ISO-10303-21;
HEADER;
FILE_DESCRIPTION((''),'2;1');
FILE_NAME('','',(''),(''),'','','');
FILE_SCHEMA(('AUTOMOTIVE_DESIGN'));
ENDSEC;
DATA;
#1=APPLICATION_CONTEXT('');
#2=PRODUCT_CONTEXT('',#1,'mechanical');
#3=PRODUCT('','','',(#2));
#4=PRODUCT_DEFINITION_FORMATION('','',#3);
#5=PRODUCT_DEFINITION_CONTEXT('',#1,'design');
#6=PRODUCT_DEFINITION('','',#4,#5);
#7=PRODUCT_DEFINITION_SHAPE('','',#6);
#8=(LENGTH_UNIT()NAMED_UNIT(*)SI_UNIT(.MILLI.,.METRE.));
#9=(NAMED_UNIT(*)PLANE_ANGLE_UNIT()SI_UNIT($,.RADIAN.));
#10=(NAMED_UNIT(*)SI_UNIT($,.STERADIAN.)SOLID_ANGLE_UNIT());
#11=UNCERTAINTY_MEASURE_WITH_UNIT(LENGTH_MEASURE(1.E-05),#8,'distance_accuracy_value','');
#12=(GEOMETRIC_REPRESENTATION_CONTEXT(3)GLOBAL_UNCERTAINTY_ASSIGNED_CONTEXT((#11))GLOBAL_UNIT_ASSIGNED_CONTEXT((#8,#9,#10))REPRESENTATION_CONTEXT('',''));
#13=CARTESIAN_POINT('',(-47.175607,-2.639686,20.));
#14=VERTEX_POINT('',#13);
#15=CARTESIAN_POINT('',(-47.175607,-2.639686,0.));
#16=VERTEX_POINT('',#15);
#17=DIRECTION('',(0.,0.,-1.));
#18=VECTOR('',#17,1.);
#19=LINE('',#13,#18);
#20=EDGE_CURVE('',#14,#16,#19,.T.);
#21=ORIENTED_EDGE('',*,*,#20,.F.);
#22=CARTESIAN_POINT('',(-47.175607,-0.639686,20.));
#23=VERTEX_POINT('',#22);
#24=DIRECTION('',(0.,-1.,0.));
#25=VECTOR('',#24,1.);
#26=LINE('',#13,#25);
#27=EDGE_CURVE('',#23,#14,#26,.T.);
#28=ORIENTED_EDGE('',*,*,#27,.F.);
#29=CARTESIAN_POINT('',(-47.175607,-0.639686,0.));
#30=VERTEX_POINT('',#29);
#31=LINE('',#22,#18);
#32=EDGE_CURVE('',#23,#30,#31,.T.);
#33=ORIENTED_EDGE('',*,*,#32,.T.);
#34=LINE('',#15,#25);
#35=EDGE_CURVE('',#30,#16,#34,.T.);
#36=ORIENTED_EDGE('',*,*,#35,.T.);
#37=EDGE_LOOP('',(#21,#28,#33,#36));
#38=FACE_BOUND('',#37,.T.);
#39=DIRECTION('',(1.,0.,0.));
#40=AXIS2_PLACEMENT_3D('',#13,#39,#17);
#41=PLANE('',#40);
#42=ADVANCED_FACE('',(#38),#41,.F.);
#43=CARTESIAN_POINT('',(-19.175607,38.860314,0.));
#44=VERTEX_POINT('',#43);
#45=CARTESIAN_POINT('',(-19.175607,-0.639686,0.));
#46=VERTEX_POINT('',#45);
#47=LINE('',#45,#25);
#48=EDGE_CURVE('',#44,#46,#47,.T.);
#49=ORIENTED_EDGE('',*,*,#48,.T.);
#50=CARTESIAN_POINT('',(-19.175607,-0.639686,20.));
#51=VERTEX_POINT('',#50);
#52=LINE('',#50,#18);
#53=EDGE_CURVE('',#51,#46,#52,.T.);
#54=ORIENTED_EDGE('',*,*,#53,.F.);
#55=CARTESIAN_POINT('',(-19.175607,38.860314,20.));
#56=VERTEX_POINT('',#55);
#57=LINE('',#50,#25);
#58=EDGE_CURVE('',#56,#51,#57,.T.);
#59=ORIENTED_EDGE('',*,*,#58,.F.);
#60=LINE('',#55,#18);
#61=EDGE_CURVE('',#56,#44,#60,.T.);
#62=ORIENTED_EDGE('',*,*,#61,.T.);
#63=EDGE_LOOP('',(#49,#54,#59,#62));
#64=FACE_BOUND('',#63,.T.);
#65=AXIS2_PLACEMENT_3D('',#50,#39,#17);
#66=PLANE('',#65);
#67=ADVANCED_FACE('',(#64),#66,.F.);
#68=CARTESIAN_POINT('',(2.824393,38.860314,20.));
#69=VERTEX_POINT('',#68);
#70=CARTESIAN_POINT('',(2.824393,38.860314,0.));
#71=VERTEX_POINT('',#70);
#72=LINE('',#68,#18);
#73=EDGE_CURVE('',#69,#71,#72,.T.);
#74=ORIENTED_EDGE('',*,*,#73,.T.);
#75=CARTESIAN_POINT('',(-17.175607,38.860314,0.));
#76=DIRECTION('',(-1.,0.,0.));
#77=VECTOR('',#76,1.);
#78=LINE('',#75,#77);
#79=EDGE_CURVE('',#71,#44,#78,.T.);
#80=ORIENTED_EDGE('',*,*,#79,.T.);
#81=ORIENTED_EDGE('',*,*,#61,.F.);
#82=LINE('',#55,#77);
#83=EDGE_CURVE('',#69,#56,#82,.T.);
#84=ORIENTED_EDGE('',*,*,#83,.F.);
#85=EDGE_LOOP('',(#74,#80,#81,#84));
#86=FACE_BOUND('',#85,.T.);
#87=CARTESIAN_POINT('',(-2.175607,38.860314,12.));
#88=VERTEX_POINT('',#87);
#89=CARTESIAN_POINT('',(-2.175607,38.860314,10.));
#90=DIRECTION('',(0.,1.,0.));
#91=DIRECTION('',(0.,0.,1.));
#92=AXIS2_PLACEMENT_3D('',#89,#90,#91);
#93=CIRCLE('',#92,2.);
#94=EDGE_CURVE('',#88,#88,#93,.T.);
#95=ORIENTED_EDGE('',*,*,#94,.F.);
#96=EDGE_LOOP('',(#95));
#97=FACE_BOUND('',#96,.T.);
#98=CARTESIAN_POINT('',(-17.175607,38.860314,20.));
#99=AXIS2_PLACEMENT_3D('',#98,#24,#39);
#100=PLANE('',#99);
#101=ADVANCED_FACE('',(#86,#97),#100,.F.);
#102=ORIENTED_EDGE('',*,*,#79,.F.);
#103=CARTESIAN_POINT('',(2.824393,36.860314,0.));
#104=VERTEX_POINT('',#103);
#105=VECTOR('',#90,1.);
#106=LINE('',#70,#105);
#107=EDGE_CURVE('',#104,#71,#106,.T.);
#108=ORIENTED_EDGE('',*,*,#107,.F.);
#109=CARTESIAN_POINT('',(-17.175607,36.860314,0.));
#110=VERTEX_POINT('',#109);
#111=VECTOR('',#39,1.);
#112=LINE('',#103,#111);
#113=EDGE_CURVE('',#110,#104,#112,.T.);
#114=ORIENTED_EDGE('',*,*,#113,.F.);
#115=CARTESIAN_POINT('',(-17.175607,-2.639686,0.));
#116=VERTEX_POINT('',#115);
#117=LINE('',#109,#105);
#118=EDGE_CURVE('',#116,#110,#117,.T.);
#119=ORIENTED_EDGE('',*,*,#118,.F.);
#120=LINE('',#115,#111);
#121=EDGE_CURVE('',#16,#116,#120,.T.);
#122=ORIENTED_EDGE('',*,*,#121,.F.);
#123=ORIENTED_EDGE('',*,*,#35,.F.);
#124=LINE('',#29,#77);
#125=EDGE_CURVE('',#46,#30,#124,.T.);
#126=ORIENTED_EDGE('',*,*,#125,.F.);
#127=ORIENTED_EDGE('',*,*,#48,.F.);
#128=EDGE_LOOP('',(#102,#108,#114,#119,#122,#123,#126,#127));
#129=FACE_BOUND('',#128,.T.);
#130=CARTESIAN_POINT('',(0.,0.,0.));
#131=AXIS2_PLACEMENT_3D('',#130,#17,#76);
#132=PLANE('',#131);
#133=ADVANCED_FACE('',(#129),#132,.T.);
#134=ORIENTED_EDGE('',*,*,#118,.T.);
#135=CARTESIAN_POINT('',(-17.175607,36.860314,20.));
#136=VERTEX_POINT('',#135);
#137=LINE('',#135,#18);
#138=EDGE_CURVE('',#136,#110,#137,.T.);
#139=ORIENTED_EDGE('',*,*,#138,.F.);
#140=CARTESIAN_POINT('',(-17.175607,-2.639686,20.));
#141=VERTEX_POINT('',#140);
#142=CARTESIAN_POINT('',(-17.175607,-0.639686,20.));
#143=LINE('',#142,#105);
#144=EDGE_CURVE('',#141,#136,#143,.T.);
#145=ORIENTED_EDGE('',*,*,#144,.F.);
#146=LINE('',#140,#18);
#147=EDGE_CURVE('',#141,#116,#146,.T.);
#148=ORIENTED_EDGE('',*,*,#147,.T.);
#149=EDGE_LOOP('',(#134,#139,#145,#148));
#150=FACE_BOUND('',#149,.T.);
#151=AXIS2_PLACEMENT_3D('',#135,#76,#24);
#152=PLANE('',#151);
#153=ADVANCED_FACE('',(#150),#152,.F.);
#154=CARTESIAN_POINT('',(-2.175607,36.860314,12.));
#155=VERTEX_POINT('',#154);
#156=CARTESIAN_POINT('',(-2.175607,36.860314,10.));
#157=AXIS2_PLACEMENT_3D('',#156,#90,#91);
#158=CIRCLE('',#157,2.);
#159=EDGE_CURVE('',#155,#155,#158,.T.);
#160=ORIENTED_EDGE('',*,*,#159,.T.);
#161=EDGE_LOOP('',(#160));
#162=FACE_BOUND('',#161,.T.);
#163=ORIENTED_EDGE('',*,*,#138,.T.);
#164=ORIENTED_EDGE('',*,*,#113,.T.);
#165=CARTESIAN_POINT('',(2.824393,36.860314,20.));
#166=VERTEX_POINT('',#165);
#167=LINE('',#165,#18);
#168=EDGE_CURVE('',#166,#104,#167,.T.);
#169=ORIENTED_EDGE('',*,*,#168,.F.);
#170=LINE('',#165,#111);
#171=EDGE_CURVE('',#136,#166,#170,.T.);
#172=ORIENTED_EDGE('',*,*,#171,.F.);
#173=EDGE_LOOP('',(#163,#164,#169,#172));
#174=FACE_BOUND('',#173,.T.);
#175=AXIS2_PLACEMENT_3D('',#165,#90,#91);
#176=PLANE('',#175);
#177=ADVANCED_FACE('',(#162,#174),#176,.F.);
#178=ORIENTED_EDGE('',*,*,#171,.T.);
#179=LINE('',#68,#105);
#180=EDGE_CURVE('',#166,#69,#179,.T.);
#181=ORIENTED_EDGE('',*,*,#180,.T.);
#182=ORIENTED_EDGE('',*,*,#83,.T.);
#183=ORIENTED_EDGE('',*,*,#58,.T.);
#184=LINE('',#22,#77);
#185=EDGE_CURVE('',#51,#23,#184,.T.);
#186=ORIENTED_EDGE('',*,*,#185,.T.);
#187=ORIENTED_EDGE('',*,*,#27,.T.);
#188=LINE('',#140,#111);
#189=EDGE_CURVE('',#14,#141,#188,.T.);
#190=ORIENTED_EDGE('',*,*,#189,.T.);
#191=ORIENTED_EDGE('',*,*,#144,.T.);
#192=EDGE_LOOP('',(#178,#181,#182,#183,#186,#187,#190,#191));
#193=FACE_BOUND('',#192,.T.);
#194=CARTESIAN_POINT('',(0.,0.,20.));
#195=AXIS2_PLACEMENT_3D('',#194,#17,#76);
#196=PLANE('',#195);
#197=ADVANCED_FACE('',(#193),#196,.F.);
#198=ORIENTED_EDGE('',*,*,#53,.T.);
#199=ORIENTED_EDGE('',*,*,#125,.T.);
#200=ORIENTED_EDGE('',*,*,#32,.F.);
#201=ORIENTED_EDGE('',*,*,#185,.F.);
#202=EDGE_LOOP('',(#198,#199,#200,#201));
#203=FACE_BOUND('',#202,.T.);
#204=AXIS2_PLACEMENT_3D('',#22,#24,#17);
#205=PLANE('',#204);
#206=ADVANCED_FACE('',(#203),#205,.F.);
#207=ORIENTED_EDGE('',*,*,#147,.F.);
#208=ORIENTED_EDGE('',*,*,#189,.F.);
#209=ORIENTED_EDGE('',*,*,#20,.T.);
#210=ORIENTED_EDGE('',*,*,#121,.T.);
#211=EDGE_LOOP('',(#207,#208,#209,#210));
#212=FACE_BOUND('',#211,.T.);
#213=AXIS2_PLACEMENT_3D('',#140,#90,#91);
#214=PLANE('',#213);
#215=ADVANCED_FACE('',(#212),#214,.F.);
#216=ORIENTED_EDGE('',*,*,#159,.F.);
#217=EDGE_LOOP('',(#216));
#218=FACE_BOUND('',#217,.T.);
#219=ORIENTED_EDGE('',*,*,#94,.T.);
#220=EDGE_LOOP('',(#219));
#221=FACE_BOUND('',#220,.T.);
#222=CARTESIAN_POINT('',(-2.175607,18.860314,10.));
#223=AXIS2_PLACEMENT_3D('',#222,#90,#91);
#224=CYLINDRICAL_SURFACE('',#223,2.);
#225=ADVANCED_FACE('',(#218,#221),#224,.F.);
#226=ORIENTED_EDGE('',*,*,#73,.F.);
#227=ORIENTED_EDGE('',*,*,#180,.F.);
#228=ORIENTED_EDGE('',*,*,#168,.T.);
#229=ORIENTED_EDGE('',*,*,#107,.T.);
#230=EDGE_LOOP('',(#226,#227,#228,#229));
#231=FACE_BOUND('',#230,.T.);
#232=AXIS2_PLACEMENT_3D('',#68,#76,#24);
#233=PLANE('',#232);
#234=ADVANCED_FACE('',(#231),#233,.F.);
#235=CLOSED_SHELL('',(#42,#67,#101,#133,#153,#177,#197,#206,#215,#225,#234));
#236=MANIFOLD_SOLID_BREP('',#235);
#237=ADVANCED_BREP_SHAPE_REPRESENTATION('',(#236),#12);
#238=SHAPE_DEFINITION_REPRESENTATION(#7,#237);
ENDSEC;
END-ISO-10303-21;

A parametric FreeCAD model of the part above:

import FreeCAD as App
import Part
import Sketcher

V = App.Vector
Q = App.Units.Quantity


def add_polygon(sketch, points):
    """Adds a closed chain of lines whose ends are joined by coincident constraints."""
    first, n = sketch.GeometryCount, len(points)
    for a, b in zip(points, points[1:] + points[:1]):
        sketch.addGeometry(Part.LineSegment(App.Vector(*a, 0), App.Vector(*b, 0)), False)
    for i in range(n):
        sketch.addConstraint(Sketcher.Constraint("Coincident", first + i, 2, first + (i + 1) % n, 1))

doc = App.newDocument("Part")
body = doc.addObject("PartDesign::Body", "Body")

sketch1 = body.newObject("Sketcher::SketchObject", "Sketch")
sketch1.AttachmentSupport = (doc.getObject("XY_Plane"), [""])
sketch1.MapMode = "FlatFace"
add_polygon(sketch1, [(2.824393, 38.860314), (-19.175607, 38.860314), (-19.175607, -0.639686), (-47.175607, -0.639686), (-47.175607, -2.639686), (-17.175607, -2.639686), (-17.175607, 36.860314), (2.824393, 36.860314)])
sketch1.addConstraint([
    Sketcher.Constraint("Horizontal", 0),
    Sketcher.Constraint("Vertical", 1),
    Sketcher.Constraint("Horizontal", 2),
    Sketcher.Constraint("Vertical", 3),
    Sketcher.Constraint("Horizontal", 4),
    Sketcher.Constraint("Vertical", 5),
    Sketcher.Constraint("Horizontal", 6),
    Sketcher.Constraint("Vertical", 7),
    Sketcher.Constraint("Equal", 1, 5),
    Sketcher.Constraint("DistanceX", 0, 2, 0, 1, Q("22 mm")),
    Sketcher.Constraint("DistanceX", 2, 2, 2, 1, Q("28 mm")),
    Sketcher.Constraint("DistanceX", 4, 1, 4, 2, Q("30 mm")),
    Sketcher.Constraint("DistanceY", 3, 2, 3, 1, Q("2 mm")),
    Sketcher.Constraint("DistanceY", 1, 2, 1, 1, Q("39.5 mm")),
    Sketcher.Constraint("DistanceX", 0, 2, -1, 1, Q("19.175607 mm")),
    Sketcher.Constraint("DistanceY", -1, 1, 0, 2, Q("38.860314 mm")),
])
pad1 = body.newObject("PartDesign::Pad", "Pad")
pad1.Profile = sketch1
pad1.Length = 20

sketch2 = body.newObject("Sketcher::SketchObject", "Sketch001")
sketch2.AttachmentSupport = (doc.getObject("XZ_Plane"), [""])
sketch2.MapMode = "FlatFace"
sketch2.AttachmentOffset = App.Placement(V(0, 0, -38.860314), App.Rotation())
sketch2.addGeometry(Part.Circle(V(-2.175607, 10, 0), V(0, 0, 1), 2), False)
sketch2.addConstraint([
    Sketcher.Constraint("Diameter", 0, Q("4 mm")),
    Sketcher.Constraint("DistanceY", -1, 1, 0, 3, Q("10 mm")),
    Sketcher.Constraint("DistanceX", 0, 3, -1, 1, Q("2.175607 mm")),
])
pocket1 = body.newObject("PartDesign::Pocket", "Pocket")
pocket1.Profile = sketch2
pocket1.Length = 20
pocket1.Reversed = True

doc.recompute()
